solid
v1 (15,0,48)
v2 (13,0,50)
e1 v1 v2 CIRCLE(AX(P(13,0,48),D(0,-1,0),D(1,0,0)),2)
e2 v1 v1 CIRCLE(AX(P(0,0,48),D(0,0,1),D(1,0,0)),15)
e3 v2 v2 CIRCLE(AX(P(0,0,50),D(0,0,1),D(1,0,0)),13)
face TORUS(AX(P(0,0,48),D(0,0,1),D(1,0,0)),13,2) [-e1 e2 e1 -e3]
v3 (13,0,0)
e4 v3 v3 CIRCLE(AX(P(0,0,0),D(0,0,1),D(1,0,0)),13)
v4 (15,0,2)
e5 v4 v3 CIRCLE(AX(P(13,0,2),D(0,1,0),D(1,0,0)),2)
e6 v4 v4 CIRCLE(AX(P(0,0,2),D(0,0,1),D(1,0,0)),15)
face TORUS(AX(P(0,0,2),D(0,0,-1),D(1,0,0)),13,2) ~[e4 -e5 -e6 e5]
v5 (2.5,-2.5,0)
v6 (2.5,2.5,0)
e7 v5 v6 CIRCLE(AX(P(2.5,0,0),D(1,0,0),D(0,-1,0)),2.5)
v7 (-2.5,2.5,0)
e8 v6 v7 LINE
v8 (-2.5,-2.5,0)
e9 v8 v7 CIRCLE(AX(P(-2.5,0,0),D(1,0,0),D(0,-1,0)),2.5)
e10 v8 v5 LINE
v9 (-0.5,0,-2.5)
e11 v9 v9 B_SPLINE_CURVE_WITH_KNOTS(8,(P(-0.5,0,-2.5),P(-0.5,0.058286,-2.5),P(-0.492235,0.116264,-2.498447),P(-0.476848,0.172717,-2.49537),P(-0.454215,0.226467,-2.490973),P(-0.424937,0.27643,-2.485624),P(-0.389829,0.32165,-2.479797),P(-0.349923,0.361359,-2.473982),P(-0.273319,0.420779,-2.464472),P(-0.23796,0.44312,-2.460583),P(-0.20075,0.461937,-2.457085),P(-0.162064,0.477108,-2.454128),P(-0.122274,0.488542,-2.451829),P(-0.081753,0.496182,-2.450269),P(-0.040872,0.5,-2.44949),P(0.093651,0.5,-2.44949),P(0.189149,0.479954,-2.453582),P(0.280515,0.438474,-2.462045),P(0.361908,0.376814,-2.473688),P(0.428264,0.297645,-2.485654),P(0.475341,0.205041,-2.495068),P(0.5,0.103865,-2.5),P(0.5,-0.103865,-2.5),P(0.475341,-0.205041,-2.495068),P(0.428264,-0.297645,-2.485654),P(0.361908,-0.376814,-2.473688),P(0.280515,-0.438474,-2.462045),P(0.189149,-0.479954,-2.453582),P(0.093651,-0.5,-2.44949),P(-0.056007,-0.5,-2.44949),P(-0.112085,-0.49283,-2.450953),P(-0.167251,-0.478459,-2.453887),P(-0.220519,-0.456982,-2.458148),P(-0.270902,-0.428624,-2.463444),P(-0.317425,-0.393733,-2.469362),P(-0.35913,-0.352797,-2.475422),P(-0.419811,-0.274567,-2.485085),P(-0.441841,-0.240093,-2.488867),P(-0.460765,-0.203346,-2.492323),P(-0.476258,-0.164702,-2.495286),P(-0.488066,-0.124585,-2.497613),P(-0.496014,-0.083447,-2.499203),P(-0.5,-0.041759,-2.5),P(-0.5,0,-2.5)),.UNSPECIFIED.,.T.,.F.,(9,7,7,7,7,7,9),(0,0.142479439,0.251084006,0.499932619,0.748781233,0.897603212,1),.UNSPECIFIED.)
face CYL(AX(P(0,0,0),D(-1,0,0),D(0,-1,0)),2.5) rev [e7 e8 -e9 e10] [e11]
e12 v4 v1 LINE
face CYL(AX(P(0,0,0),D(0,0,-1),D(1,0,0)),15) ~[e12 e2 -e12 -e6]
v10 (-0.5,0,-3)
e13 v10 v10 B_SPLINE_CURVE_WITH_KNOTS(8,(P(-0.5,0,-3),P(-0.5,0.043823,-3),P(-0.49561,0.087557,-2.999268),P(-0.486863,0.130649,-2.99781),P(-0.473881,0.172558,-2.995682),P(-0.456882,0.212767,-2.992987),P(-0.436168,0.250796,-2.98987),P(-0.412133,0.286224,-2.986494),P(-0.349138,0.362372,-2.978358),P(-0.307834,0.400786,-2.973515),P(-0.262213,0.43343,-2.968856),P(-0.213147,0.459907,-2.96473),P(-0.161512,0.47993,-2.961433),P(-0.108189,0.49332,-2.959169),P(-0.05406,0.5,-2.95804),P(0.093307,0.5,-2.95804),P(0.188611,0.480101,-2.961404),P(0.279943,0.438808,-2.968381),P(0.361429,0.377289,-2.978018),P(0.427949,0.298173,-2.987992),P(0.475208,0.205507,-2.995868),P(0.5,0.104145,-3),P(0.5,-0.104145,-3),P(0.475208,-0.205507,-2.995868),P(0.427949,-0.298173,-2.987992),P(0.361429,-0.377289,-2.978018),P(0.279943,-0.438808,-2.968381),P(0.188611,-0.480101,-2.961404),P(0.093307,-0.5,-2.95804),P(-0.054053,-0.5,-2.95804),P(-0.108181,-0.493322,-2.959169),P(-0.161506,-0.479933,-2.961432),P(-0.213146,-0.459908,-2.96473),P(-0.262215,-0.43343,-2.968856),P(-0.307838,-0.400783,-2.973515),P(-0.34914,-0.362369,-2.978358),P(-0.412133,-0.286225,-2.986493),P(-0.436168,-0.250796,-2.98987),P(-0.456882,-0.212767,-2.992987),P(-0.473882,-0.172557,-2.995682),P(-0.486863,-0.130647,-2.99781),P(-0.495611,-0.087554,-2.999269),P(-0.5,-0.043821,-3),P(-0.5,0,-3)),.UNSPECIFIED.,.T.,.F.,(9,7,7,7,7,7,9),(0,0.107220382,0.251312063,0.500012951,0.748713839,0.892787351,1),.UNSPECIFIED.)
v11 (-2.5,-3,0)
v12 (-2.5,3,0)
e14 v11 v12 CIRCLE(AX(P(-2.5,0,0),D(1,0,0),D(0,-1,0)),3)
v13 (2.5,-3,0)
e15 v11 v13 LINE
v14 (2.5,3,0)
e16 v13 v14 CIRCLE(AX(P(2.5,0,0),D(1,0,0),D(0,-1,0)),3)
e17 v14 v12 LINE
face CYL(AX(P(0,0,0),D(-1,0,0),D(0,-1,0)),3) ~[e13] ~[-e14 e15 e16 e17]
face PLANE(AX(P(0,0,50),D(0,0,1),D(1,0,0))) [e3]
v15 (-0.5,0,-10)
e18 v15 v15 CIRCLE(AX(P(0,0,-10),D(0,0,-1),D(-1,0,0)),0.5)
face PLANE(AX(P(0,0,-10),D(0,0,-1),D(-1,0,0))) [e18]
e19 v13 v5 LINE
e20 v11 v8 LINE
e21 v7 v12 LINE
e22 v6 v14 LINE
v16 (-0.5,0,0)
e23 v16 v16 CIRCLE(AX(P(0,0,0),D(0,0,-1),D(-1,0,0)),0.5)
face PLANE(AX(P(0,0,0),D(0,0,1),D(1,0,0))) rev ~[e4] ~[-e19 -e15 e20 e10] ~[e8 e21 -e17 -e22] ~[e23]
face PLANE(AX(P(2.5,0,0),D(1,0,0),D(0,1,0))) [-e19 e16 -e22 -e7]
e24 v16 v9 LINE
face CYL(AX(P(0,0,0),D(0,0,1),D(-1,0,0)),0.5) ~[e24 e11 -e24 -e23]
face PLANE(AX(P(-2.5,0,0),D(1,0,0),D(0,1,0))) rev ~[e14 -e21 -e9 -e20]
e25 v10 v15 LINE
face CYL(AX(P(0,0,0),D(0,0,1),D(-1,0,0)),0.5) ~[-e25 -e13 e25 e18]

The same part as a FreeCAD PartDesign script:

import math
import FreeCAD as App
import Part
import Sketcher
Q = App.Units.Quantity


def edges_at(feature, points):
    """Names of the edges that pass closest to the given points."""
    edges = feature.Shape.Edges
    near = lambda p: min(range(len(edges)), key=lambda i: edges[i].distToShape(Part.Vertex(*p))[0])
    return sorted({f"Edge{near(p) + 1}" for p in points})

doc = App.newDocument("Part")
body = doc.addObject("PartDesign::Body", "Body")

sketch1 = doc.addObject("Sketcher::SketchObject", "Sketch")
body.addObject(sketch1)
sketch1.AttachmentSupport = (doc.XY_Plane, [""])
sketch1.MapMode = "FlatFace"
sketch1.addGeometry(Part.Circle(App.Vector(0, 0, 0), App.Vector(0, 0, 1), 15), False)
sketch1.addConstraint([
    Sketcher.Constraint("Coincident", 0, 3, -1, 1),
    Sketcher.Constraint("Diameter", 0, Q("30 mm")),
])
pad1 = doc.addObject("PartDesign::Pad", "Pad")
body.addObject(pad1)
pad1.Profile = sketch1
pad1.Length = 50

sketch2 = doc.addObject("Sketcher::SketchObject", "Sketch001")
body.addObject(sketch2)
sketch2.AttachmentSupport = (doc.YZ_Plane, [""])
sketch2.MapMode = "FlatFace"
sketch2.addGeometry([
    Part.ArcOfCircle(Part.Circle(App.Vector(0, 0, 0), App.Vector(0, 0, 1), 2.5), math.radians(180), math.radians(360)),
    Part.LineSegment(App.Vector(-2.5, 0, 0), App.Vector(-3, 0, 0)),
    Part.ArcOfCircle(Part.Circle(App.Vector(0, 0, 0), App.Vector(0, 0, 1), 3), math.radians(180), math.radians(360)),
    Part.LineSegment(App.Vector(3, 0, 0), App.Vector(2.5, 0, 0)),
], False)
sketch2.addConstraint([
    Sketcher.Constraint("Coincident", 0, 1, 1, 1),
    Sketcher.Constraint("Coincident", 1, 2, 2, 1),
    Sketcher.Constraint("Coincident", 2, 2, 3, 1),
    Sketcher.Constraint("Coincident", 3, 2, 0, 2),
    Sketcher.Constraint("Horizontal", 1),
    Sketcher.Constraint("Horizontal", 3),
    Sketcher.Constraint("Coincident", 0, 3, -1, 1),
    Sketcher.Constraint("Coincident", 2, 3, -1, 1),
    Sketcher.Constraint("PointOnObject", 0, 1, -1),
    Sketcher.Constraint("PointOnObject", 2, 2, -1),
    Sketcher.Constraint("Radius", 2, Q("3 mm")),
    Sketcher.Constraint("Radius", 0, Q("2.5 mm")),
])
pad2 = doc.addObject("PartDesign::Pad", "Pad001")
body.addObject(pad2)
pad2.Profile = sketch2
pad2.Length = 5
pad2.Midplane = True
doc.recompute()

fillet = doc.addObject("PartDesign::Fillet", "Fillet")
body.addObject(fillet)
fillet.Base = (pad2, edges_at(pad2, [(-15, 0, 50), (-15, 0, 0)]))
fillet.Radius = 2

sketch3 = doc.addObject("Sketcher::SketchObject", "Sketch002")
body.addObject(sketch3)
sketch3.AttachmentSupport = (doc.XY_Plane, [""])
sketch3.MapMode = "FlatFace"
sketch3.addGeometry(Part.Circle(App.Vector(0, 0, 0), App.Vector(0, 0, 1), 0.5), False)
sketch3.addConstraint([
    Sketcher.Constraint("Coincident", 0, 3, -1, 1),
    Sketcher.Constraint("Diameter", 0, Q("1 mm")),
])
pad3 = doc.addObject("PartDesign::Pad", "Pad002")
body.addObject(pad3)
pad3.Profile = sketch3
pad3.Length = 10
pad3.Reversed = True

doc.recompute()
